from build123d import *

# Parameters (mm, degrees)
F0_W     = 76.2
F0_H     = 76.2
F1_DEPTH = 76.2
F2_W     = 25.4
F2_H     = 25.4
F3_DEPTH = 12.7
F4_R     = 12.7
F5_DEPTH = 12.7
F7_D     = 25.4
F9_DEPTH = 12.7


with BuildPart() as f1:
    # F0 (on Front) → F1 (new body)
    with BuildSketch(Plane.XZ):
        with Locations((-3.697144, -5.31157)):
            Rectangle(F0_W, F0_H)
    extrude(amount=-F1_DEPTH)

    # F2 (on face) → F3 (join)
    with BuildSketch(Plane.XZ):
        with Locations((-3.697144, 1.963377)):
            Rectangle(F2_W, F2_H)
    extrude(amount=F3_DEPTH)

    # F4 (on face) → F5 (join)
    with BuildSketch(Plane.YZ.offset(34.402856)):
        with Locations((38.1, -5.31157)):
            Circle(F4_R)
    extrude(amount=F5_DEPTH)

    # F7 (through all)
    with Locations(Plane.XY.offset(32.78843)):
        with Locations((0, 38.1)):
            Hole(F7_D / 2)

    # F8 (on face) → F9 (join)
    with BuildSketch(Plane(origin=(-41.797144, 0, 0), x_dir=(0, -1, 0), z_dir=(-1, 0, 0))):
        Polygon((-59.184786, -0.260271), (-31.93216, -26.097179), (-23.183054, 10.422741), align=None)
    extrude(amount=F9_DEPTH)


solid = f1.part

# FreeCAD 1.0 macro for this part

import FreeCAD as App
import Part
import Sketcher
from FreeCAD import Vector
Q = App.Units.Quantity

doc = App.newDocument("Part")
params = doc.addObject("Spreadsheet::Sheet", "Params")
for row, (alias, value) in enumerate([
    ("sketch1_width", "3 in"),
    ("pad1_length", "3 in"),
    ("sketch2_width", "1 in"),
    ("pad2_length", "0.5 in"),
    ("sketch3_diameter", "1 in"),
    ("pad3_length", "0.5 in"),
    ("sketch4_diameter", "1 in"),
    ("hole_diameter", "1 in"),
    ("pad4_length", "0.5 in"),
], start=1):
    params.set(f"A{row}", alias)
    params.set(f"B{row}", "=" + value)
    params.setAlias(f"B{row}", alias)

body = doc.addObject("PartDesign::Body", "Body")

sketch1 = body.newObject("Sketcher::SketchObject", "Sketch")
sketch1.AttachmentSupport = (doc.getObject("XZ_Plane"), [""])
sketch1.MapMode = "FlatFace"
sketch1.addGeometry(Part.LineSegment(Vector(-42, 33, 0), Vector(-42, -43, 0)), False)
sketch1.addGeometry(Part.LineSegment(Vector(-42, -43, 0), Vector(34, -43, 0)), False)
sketch1.addGeometry(Part.LineSegment(Vector(34, -43, 0), Vector(34, 33, 0)), False)
sketch1.addGeometry(Part.LineSegment(Vector(34, 33, 0), Vector(-42, 33, 0)), False)
sketch1.addConstraint(Sketcher.Constraint("Coincident", 0, 2, 1, 1))
sketch1.addConstraint(Sketcher.Constraint("Coincident", 1, 2, 2, 1))
sketch1.addConstraint(Sketcher.Constraint("Coincident", 2, 2, 3, 1))
sketch1.addConstraint(Sketcher.Constraint("Coincident", 3, 2, 0, 1))
sketch1.addConstraint(Sketcher.Constraint("Vertical", 0))
sketch1.addConstraint(Sketcher.Constraint("Horizontal", 1))
sketch1.addConstraint(Sketcher.Constraint("Vertical", 2))
sketch1.addConstraint(Sketcher.Constraint("Horizontal", 3))
sketch1.addConstraint(Sketcher.Constraint("Equal", 3, 0))
sketch1.addConstraint(Sketcher.Constraint("DistanceX", 1, 1, 1, 2, Q("3 in")))
sketch1.addConstraint(Sketcher.Constraint("DistanceY", 0, 2, -1, 1, 43.41157))
sketch1.addConstraint(Sketcher.Constraint("DistanceX", 0, 2, -1, 1, 41.797144))
sketch1.setExpression("Constraints[9]", "Params.sketch1_width")
pad1 = body.newObject("PartDesign::Pad", "Pad")
pad1.Profile = sketch1
pad1.setExpression("Length", "Params.pad1_length")
pad1.Reversed = True

sketch2 = body.newObject("Sketcher::SketchObject", "Sketch001")
sketch2.AttachmentSupport = (doc.getObject("XZ_Plane"), [""])
sketch2.MapMode = "FlatFace"
sketch2.addGeometry(Part.LineSegment(Vector(-16, 15, 0), Vector(-16, -11, 0)), False)
sketch2.addGeometry(Part.LineSegment(Vector(-16, -11, 0), Vector(9, -11, 0)), False)
sketch2.addGeometry(Part.LineSegment(Vector(9, -11, 0), Vector(9, 15, 0)), False)
sketch2.addGeometry(Part.LineSegment(Vector(9, 15, 0), Vector(-16, 15, 0)), False)
sketch2.addConstraint(Sketcher.Constraint("Coincident", 0, 2, 1, 1))
sketch2.addConstraint(Sketcher.Constraint("Coincident", 1, 2, 2, 1))
sketch2.addConstraint(Sketcher.Constraint("Coincident", 2, 2, 3, 1))
sketch2.addConstraint(Sketcher.Constraint("Coincident", 3, 2, 0, 1))
sketch2.addConstraint(Sketcher.Constraint("Vertical", 0))
sketch2.addConstraint(Sketcher.Constraint("Horizontal", 1))
sketch2.addConstraint(Sketcher.Constraint("Vertical", 2))
sketch2.addConstraint(Sketcher.Constraint("Horizontal", 3))
sketch2.addConstraint(Sketcher.Constraint("Equal", 3, 0))
sketch2.addConstraint(Sketcher.Constraint("DistanceX", 1, 1, 1, 2, Q("1 in")))
sketch2.addConstraint(Sketcher.Constraint("DistanceX", 0, 2, -1, 1, 16.397144))
sketch2.addConstraint(Sketcher.Constraint("DistanceY", 0, 2, -1, 1, 10.736623))
sketch2.setExpression("Constraints[9]", "Params.sketch2_width")
pad2 = body.newObject("PartDesign::Pad", "Pad001")
pad2.Profile = sketch2
pad2.setExpression("Length", "Params.pad2_length")

sketch3 = body.newObject("Sketcher::SketchObject", "Sketch002")
sketch3.AttachmentSupport = (doc.getObject("YZ_Plane"), [""])
sketch3.MapMode = "FlatFace"
sketch3.AttachmentOffset = App.Placement(Vector(0, 0, 34.402856), App.Rotation())
sketch3.addGeometry(Part.Circle(Vector(38, -5, 0), Vector(0, 0, 1), 13), False)
sketch3.addConstraint(Sketcher.Constraint("Diameter", 0, Q("1 in")))
sketch3.addConstraint(Sketcher.Constraint("DistanceX", -1, 1, 0, 3, Q("1.5 in")))
sketch3.addConstraint(Sketcher.Constraint("DistanceY", 0, 3, -1, 1, 5.31157))
sketch3.setExpression("Constraints[0]", "Params.sketch3_diameter")
pad3 = body.newObject("PartDesign::Pad", "Pad002")
pad3.Profile = sketch3
pad3.setExpression("Length", "Params.pad3_length")

sketch4 = body.newObject("Sketcher::SketchObject", "Sketch003")
sketch4.AttachmentSupport = (doc.getObject("XY_Plane"), [""])
sketch4.MapMode = "FlatFace"
sketch4.AttachmentOffset = App.Placement(Vector(0, 0, 32.78843), App.Rotation())
sketch4.addGeometry(Part.Circle(Vector(0, 38, 0), Vector(0, 0, 1), 13), False)
sketch4.addConstraint(Sketcher.Constraint("PointOnObject", 0, 3, -2))
sketch4.addConstraint(Sketcher.Constraint("Diameter", 0, Q("1 in")))
sketch4.addConstraint(Sketcher.Constraint("DistanceY", -1, 1, 0, 3, Q("1.5 in")))
sketch4.setExpression("Constraints[1]", "Params.sketch4_diameter")
doc.recompute()
hole = body.newObject("PartDesign::Hole", "Hole")
hole.Profile = sketch4
hole.ThreadType = "None"
hole.setExpression("Diameter", "Params.hole_diameter")
hole.DepthType = "ThroughAll"

sketch5 = body.newObject("Sketcher::SketchObject", "Sketch004")
sketch5.AttachmentSupport = (doc.getObject("YZ_Plane"), [""])
sketch5.MapMode = "FlatFace"
sketch5.AttachmentOffset = App.Placement(Vector(0, 0, -41.797144), App.Rotation())
sketch5.addGeometry(Part.LineSegment(Vector(59, 0, 0), Vector(32, -26, 0)), False)
sketch5.addGeometry(Part.LineSegment(Vector(32, -26, 0), Vector(23, 10, 0)), False)
sketch5.addGeometry(Part.LineSegment(Vector(23, 10, 0), Vector(59, 0, 0)), False)
sketch5.addConstraint(Sketcher.Constraint("Coincident", 0, 2, 1, 1))
sketch5.addConstraint(Sketcher.Constraint("Coincident", 1, 2, 2, 1))
sketch5.addConstraint(Sketcher.Constraint("Coincident", 2, 2, 0, 1))
sketch5.addConstraint(Sketcher.Constraint("Equal", 0, 1))
sketch5.addConstraint(Sketcher.Constraint("Equal", 1, 2))
sketch5.addConstraint(Sketcher.Constraint("DistanceX", -1, 1, 0, 2, 31.93216))
sketch5.addConstraint(Sketcher.Constraint("DistanceY", 0, 2, -1, 1, 26.097179))
sketch5.addConstraint(Sketcher.Constraint("DistanceY", -1, 1, 1, 2, 10.422741))
sketch5.addConstraint(Sketcher.Constraint("DistanceY", 2, 2, -1, 1, 0.260271))
pad4 = body.newObject("PartDesign::Pad", "Pad003")
pad4.Profile = sketch5
pad4.setExpression("Length", "Params.pad4_length")
pad4.Reversed = True

doc.recompute()
